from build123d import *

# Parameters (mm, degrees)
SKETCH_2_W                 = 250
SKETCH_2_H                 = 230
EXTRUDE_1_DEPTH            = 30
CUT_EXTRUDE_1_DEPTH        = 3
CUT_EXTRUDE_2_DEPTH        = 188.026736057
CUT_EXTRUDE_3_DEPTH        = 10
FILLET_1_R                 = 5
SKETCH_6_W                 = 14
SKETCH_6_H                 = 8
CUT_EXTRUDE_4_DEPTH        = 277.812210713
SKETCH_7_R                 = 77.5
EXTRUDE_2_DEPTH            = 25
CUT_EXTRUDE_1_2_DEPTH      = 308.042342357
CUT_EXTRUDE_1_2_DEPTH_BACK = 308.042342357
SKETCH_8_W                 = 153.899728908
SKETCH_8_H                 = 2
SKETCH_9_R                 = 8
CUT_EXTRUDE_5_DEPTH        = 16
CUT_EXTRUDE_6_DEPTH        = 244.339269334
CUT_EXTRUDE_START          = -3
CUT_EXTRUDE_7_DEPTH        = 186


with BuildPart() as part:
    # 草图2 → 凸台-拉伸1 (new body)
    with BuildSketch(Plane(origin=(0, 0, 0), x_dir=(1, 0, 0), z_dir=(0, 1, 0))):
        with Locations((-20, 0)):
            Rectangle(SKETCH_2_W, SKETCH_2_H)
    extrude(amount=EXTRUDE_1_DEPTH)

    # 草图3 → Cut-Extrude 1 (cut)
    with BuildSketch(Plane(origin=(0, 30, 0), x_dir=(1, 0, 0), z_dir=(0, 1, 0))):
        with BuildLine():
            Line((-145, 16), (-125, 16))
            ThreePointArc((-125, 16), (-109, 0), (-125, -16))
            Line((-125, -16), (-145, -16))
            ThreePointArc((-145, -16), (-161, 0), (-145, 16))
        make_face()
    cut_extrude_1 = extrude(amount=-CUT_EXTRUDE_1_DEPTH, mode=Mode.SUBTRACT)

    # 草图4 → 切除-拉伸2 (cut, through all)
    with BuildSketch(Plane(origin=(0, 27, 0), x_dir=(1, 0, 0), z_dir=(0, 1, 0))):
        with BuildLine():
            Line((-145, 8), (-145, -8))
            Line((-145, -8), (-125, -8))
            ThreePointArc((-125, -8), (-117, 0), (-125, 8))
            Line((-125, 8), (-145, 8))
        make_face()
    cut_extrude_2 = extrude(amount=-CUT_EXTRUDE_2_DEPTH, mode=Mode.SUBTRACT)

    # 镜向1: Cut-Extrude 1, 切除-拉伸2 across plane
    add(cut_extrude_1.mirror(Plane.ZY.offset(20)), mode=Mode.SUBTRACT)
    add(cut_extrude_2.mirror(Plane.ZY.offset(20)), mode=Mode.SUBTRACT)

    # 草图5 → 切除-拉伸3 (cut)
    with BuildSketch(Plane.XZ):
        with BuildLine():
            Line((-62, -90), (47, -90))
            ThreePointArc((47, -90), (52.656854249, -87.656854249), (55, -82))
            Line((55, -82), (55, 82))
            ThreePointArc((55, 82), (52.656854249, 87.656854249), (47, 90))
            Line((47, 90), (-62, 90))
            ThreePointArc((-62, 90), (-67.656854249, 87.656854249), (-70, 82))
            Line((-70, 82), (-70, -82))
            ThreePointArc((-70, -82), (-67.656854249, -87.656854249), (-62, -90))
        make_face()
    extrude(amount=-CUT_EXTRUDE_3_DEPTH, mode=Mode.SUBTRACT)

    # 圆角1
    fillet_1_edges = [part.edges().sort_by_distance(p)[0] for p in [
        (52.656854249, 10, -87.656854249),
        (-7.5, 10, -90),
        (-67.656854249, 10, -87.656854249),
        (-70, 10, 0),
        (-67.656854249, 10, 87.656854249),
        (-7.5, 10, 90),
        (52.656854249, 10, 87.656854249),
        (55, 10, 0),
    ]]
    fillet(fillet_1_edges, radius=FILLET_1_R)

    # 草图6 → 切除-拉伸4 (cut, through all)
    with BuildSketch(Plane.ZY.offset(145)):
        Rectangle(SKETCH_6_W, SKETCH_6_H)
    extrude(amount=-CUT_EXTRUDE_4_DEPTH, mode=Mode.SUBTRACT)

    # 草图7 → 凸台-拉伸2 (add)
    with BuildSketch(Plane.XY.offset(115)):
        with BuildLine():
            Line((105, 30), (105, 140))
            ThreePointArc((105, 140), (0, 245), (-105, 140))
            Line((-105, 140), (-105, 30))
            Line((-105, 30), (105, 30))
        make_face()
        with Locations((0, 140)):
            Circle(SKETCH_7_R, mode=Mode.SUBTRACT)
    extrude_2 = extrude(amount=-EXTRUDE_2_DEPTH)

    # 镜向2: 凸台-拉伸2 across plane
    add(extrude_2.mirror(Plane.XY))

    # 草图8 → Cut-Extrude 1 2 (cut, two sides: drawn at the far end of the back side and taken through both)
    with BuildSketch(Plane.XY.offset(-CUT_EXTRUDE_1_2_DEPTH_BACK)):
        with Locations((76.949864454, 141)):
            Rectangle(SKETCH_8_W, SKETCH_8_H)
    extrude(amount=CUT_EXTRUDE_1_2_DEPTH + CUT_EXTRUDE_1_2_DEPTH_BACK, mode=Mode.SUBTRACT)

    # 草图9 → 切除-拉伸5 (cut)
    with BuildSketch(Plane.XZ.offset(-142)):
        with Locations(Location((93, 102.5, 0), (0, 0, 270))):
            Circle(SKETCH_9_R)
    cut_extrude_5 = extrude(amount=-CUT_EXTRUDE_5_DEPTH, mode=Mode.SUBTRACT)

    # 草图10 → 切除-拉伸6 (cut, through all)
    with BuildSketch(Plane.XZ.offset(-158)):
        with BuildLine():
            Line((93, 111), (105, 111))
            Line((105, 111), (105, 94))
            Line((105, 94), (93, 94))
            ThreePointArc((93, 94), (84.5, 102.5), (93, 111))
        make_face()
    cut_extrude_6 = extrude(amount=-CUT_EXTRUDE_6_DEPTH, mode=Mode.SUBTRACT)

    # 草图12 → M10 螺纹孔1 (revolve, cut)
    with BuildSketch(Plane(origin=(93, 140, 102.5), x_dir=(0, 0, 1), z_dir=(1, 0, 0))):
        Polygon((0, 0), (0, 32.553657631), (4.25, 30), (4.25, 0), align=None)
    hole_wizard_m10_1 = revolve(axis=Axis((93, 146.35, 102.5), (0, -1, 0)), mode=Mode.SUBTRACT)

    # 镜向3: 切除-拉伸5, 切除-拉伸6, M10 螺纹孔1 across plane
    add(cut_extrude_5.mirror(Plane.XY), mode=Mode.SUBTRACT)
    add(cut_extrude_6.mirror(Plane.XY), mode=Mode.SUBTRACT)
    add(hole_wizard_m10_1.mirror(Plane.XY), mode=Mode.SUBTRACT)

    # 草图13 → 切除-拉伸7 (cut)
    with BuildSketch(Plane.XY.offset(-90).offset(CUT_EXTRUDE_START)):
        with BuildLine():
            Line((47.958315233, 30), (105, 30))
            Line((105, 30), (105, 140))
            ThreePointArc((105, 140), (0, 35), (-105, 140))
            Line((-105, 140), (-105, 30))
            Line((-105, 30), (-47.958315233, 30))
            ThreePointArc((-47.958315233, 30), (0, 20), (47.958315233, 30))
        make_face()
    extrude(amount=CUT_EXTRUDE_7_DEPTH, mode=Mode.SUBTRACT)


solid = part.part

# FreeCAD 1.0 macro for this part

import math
import FreeCAD as App
import Part
import Sketcher
Q = App.Units.Quantity


def edges_at(feature, points):
    """Names of the edges that pass closest to the given points."""
    edges = feature.Shape.Edges
    near = lambda p: min(range(len(edges)), key=lambda i: edges[i].distToShape(Part.Vertex(*p))[0])
    return sorted({f"Edge{near(p) + 1}" for p in points})

doc = App.newDocument("Part")
body = doc.addObject("PartDesign::Body", "Body")

# Sketch on XZ plane
sketch1 = body.newObject("Sketcher::SketchObject", "Sketch")
sketch1.AttachmentSupport = (doc.getObject("XZ_Plane"), [""])
sketch1.MapMode = "FlatFace"
sketch1.addGeometry([
    Part.LineSegment(App.Vector(-145, -115, 0), App.Vector(-145, 115, 0)),
    Part.LineSegment(App.Vector(-145, 115, 0), App.Vector(105, 115, 0)),
    Part.LineSegment(App.Vector(105, 115, 0), App.Vector(105, -115, 0)),
    Part.LineSegment(App.Vector(105, -115, 0), App.Vector(-145, -115, 0)),
], False)
sketch1.addConstraint([
    Sketcher.Constraint("Coincident", 0, 2, 1, 1),
    Sketcher.Constraint("Coincident", 1, 2, 2, 1),
    Sketcher.Constraint("Coincident", 2, 2, 3, 1),
    Sketcher.Constraint("Coincident", 3, 2, 0, 1),
    Sketcher.Constraint("Vertical", 0),
    Sketcher.Constraint("Horizontal", 1),
    Sketcher.Constraint("Vertical", 2),
    Sketcher.Constraint("Horizontal", 3),
    Sketcher.Constraint("DistanceX", 1, 1, 1, 2, 250.0),
    Sketcher.Constraint("DistanceY", 0, 1, 0, 2, 230.0),
    Sketcher.Constraint("DistanceX", 0, 2, -1, 1, 145.0),
    Sketcher.Constraint("DistanceY", -1, 1, 0, 2, 115.0),
])
pad1 = body.newObject("PartDesign::Pad", "Pad")
pad1.Profile = sketch1
pad1.Length = 30
pad1.Reversed = True

# Sketch on XZ plane
sketch2 = body.newObject("Sketcher::SketchObject", "Sketch001")
sketch2.AttachmentSupport = (doc.getObject("XZ_Plane"), [""])
sketch2.MapMode = "FlatFace"
sketch2.AttachmentOffset = App.Placement(App.Vector(0, 0, -30), App.Rotation())
sketch2.addGeometry([
    Part.LineSegment(App.Vector(-125, -16, 0), App.Vector(-145, -16, 0)),
    Part.ArcOfCircle(Part.Circle(App.Vector(-145, 0, 0), App.Vector(0, 0, 1), 16), math.radians(90), math.radians(270)),
    Part.LineSegment(App.Vector(-145, 16, 0), App.Vector(-125, 16, 0)),
    Part.ArcOfCircle(Part.Circle(App.Vector(-125, 0, 0), App.Vector(0, 0, 1), 16), math.radians(-90), math.radians(90)),
], False)
sketch2.addConstraint([
    Sketcher.Constraint("Tangent", 0, 2, 1, 2),
    Sketcher.Constraint("Tangent", 1, 1, 2, 1),
    Sketcher.Constraint("Tangent", 2, 2, 3, 2),
    Sketcher.Constraint("Tangent", 3, 1, 0, 1),
    Sketcher.Constraint("Horizontal", 0),
    Sketcher.Constraint("Horizontal", 2),
    Sketcher.Constraint("PointOnObject", 1, 3, -1),
    Sketcher.Constraint("Radius", 1, 16.0),
    Sketcher.Constraint("DistanceX", 0, 2, 0, 1, 20.0),
    Sketcher.Constraint("DistanceX", 1, 3, -1, 1, 145.0),
])
pocket1 = body.newObject("PartDesign::Pocket", "Pocket")
pocket1.Profile = sketch2
pocket1.Length = 3
pocket1.Reversed = True

# Sketch on XZ plane
sketch3 = body.newObject("Sketcher::SketchObject", "Sketch002")
sketch3.AttachmentSupport = (doc.getObject("XZ_Plane"), [""])
sketch3.MapMode = "FlatFace"
sketch3.AttachmentOffset = App.Placement(App.Vector(0, 0, -27), App.Rotation())
sketch3.addGeometry([
    Part.LineSegment(App.Vector(-145, -8, 0), App.Vector(-145, 8, 0)),
    Part.LineSegment(App.Vector(-145, 8, 0), App.Vector(-125, 8, 0)),
    Part.ArcOfCircle(Part.Circle(App.Vector(-125, 0, 0), App.Vector(0, 0, 1), 8), math.radians(-90), math.radians(90)),
    Part.LineSegment(App.Vector(-125, -8, 0), App.Vector(-145, -8, 0)),
], False)
sketch3.addConstraint([
    Sketcher.Constraint("Coincident", 0, 2, 1, 1),
    Sketcher.Constraint("Tangent", 1, 2, 2, 2),
    Sketcher.Constraint("Tangent", 2, 1, 3, 1),
    Sketcher.Constraint("Coincident", 3, 2, 0, 1),
    Sketcher.Constraint("Vertical", 0),
    Sketcher.Constraint("Horizontal", 1),
    Sketcher.Constraint("Horizontal", 3),
    Sketcher.Constraint("PointOnObject", 2, 3, -1),
    Sketcher.Constraint("Radius", 2, 8.0),
    Sketcher.Constraint("DistanceX", 1, 1, 1, 2, 20.0),
    Sketcher.Constraint("DistanceX", 2, 3, -1, 1, 125.0),
])
pocket2 = body.newObject("PartDesign::Pocket", "Pocket001")
pocket2.Profile = sketch3
pocket2.Type = "ThroughAll"
pocket2.Reversed = True
doc.recompute()

datumplane = body.newObject("PartDesign::Plane", "DatumPlane")
datumplane.AttachmentSupport = (doc.getObject("YZ_Plane"), [""])
datumplane.MapMode = "FlatFace"
datumplane.AttachmentOffset = App.Placement(App.Vector(0, 0, -20), App.Rotation())
mirrored = body.newObject("PartDesign::Mirrored", "Mirrored")
mirrored.Originals = [pocket1, pocket2]
mirrored.MirrorPlane = (datumplane, [""])
body.Tip = mirrored

# Sketch on XZ plane
sketch4 = body.newObject("Sketcher::SketchObject", "Sketch003")
sketch4.AttachmentSupport = (doc.getObject("XZ_Plane"), [""])
sketch4.MapMode = "FlatFace"
sketch4.addGeometry([
    Part.LineSegment(App.Vector(-62, -90, 0), App.Vector(47, -90, 0)),  # 0
    Part.ArcOfCircle(Part.Circle(App.Vector(47, -82, 0), App.Vector(0, 0, 1), 8), math.radians(-90), math.radians(0)),  # 1
    Part.LineSegment(App.Vector(55, -82, 0), App.Vector(55, 82, 0)),  # 2
    Part.ArcOfCircle(Part.Circle(App.Vector(47, 82, 0), App.Vector(0, 0, 1), 8), math.radians(0), math.radians(90)),  # 3
    Part.LineSegment(App.Vector(47, 90, 0), App.Vector(-62, 90, 0)),  # 4
    Part.ArcOfCircle(Part.Circle(App.Vector(-62, 82, 0), App.Vector(0, 0, 1), 8), math.radians(90), math.radians(180)),  # 5
    Part.LineSegment(App.Vector(-70, 82, 0), App.Vector(-70, -82, 0)),  # 6
    Part.ArcOfCircle(Part.Circle(App.Vector(-62, -82, 0), App.Vector(0, 0, 1), 8), math.radians(-180), math.radians(-90)),  # 7
], False)
sketch4.addConstraint([
    Sketcher.Constraint("Tangent", 0, 2, 1, 1),
    Sketcher.Constraint("Tangent", 1, 2, 2, 1),
    Sketcher.Constraint("Tangent", 2, 2, 3, 1),
    Sketcher.Constraint("Tangent", 3, 2, 4, 1),
    Sketcher.Constraint("Tangent", 4, 2, 5, 1),
    Sketcher.Constraint("Tangent", 5, 2, 6, 1),
    Sketcher.Constraint("Tangent", 6, 2, 7, 1),
    Sketcher.Constraint("Tangent", 7, 2, 0, 1),
    Sketcher.Constraint("Horizontal", 0),
    Sketcher.Constraint("Vertical", 2),
    Sketcher.Constraint("Horizontal", 4),
    Sketcher.Constraint("Vertical", 6),
    Sketcher.Constraint("Equal", 1, 3),
    Sketcher.Constraint("Equal", 3, 5),
    Sketcher.Constraint("Equal", 5, 7),
    Sketcher.Constraint("Radius", 1, 8.0),
    Sketcher.Constraint("DistanceX", 0, 1, 0, 2, 109.0),
    Sketcher.Constraint("DistanceY", 2, 1, 2, 2, 164.0),
    Sketcher.Constraint("DistanceX", -1, 1, 1, 3, 47.0),
    Sketcher.Constraint("DistanceY", 1, 3, -1, 1, 82.0),
])
pocket3 = body.newObject("PartDesign::Pocket", "Pocket002")
pocket3.Profile = sketch4
pocket3.Length = 10
doc.recompute()

fillet = body.newObject("PartDesign::Fillet", "Fillet")
fillet.Base = (pocket3, edges_at(pocket3, [
    (52.657, 10, -87.657),
    (-7.5, 10, -90),
    (-67.657, 10, -87.657),
    (-70, 10, 0),
    (-67.657, 10, 87.657),
    (-7.5, 10, 90),
    (52.657, 10, 87.657),
    (55, 10, 0),
]))
fillet.Radius = 5

# Sketch on YZ plane
sketch5 = body.newObject("Sketcher::SketchObject", "Sketch004")
sketch5.AttachmentSupport = (doc.getObject("YZ_Plane"), [""])
sketch5.MapMode = "FlatFace"
sketch5.AttachmentOffset = App.Placement(App.Vector(0, 0, -145), App.Rotation())
sketch5.addGeometry([
    Part.LineSegment(App.Vector(4, -7, 0), App.Vector(-4, -7, 0)),
    Part.LineSegment(App.Vector(-4, -7, 0), App.Vector(-4, 7, 0)),
    Part.LineSegment(App.Vector(-4, 7, 0), App.Vector(4, 7, 0)),
    Part.LineSegment(App.Vector(4, 7, 0), App.Vector(4, -7, 0)),
], False)
sketch5.addConstraint([
    Sketcher.Constraint("Coincident", 0, 2, 1, 1),
    Sketcher.Constraint("Coincident", 1, 2, 2, 1),
    Sketcher.Constraint("Coincident", 2, 2, 3, 1),
    Sketcher.Constraint("Coincident", 3, 2, 0, 1),
    Sketcher.Constraint("Horizontal", 0),
    Sketcher.Constraint("Vertical", 1),
    Sketcher.Constraint("Horizontal", 2),
    Sketcher.Constraint("Vertical", 3),
    Sketcher.Constraint("Symmetric", 0, 2, 2, 2, -1, 1),
    Sketcher.Constraint("DistanceX", 0, 2, 0, 1, 8.0),
    Sketcher.Constraint("DistanceY", 1, 1, 1, 2, 14.0),
])
pocket4 = body.newObject("PartDesign::Pocket", "Pocket003")
pocket4.Profile = sketch5
pocket4.Type = "ThroughAll"
pocket4.Reversed = True

# Sketch on XY plane
sketch6 = body.newObject("Sketcher::SketchObject", "Sketch005")
sketch6.AttachmentSupport = (doc.getObject("XY_Plane"), [""])
sketch6.MapMode = "FlatFace"
sketch6.AttachmentOffset = App.Placement(App.Vector(0, 0, 115), App.Rotation())
sketch6.addGeometry([
    Part.LineSegment(App.Vector(105, 30, 0), App.Vector(105, 140, 0)),  # 0
    Part.ArcOfCircle(Part.Circle(App.Vector(0, 140, 0), App.Vector(0, 0, 1), 105), math.radians(0), math.radians(180)),  # 1
    Part.LineSegment(App.Vector(-105, 140, 0), App.Vector(-105, 30, 0)),  # 2
    Part.LineSegment(App.Vector(-105, 30, 0), App.Vector(105, 30, 0)),  # 3
    Part.Circle(App.Vector(0, 140, 0), App.Vector(0, 0, 1), 77.5),  # 4
], False)
sketch6.addConstraint([
    Sketcher.Constraint("Tangent", 0, 2, 1, 1),
    Sketcher.Constraint("Tangent", 1, 2, 2, 1),
    Sketcher.Constraint("Coincident", 2, 2, 3, 1),
    Sketcher.Constraint("Coincident", 3, 2, 0, 1),
    Sketcher.Constraint("Vertical", 0),
    Sketcher.Constraint("Vertical", 2),
    Sketcher.Constraint("Horizontal", 3),
    Sketcher.Constraint("Coincident", 4, 3, 1, 3),
    Sketcher.Constraint("PointOnObject", 1, 3, -2),
    Sketcher.Constraint("Diameter", 4, 155.0),
    Sketcher.Constraint("Radius", 1, 105.0),
    Sketcher.Constraint("DistanceY", 0, 1, 0, 2, 110.0),
    Sketcher.Constraint("DistanceY", -1, 1, 1, 3, 140.0),
])
pad2 = body.newObject("PartDesign::Pad", "Pad001")
pad2.Profile = sketch6
pad2.Length = 25
pad2.Reversed = True
doc.recompute()

mirrored2 = body.newObject("PartDesign::Mirrored", "Mirrored001")
mirrored2.Originals = [pad2]
mirrored2.MirrorPlane = (doc.getObject("XY_Plane"), [""])
body.Tip = mirrored2

# Sketch on XY plane
sketch7 = body.newObject("Sketcher::SketchObject", "Sketch006")
sketch7.AttachmentSupport = (doc.getObject("XY_Plane"), [""])
sketch7.MapMode = "FlatFace"
sketch7.addGeometry([
    Part.LineSegment(App.Vector(0, 142, 0), App.Vector(0, 140, 0)),
    Part.LineSegment(App.Vector(0, 140, 0), App.Vector(153.899729, 140, 0)),
    Part.LineSegment(App.Vector(153.899729, 140, 0), App.Vector(153.899729, 142, 0)),
    Part.LineSegment(App.Vector(153.899729, 142, 0), App.Vector(0, 142, 0)),
], False)
sketch7.addConstraint([
    Sketcher.Constraint("Coincident", 0, 2, 1, 1),
    Sketcher.Constraint("Coincident", 1, 2, 2, 1),
    Sketcher.Constraint("Coincident", 2, 2, 3, 1),
    Sketcher.Constraint("Coincident", 3, 2, 0, 1),
    Sketcher.Constraint("Vertical", 0),
    Sketcher.Constraint("Horizontal", 1),
    Sketcher.Constraint("Vertical", 2),
    Sketcher.Constraint("Horizontal", 3),
    Sketcher.Constraint("PointOnObject", 0, 2, -2),
    Sketcher.Constraint("DistanceY", 0, 2, 0, 1, 2.0),
    Sketcher.Constraint("DistanceY", -1, 1, 0, 2, 140.0),
    Sketcher.Constraint("DistanceX", 1, 1, 1, 2, 153.899729),
])
pocket5 = body.newObject("PartDesign::Pocket", "Pocket004")
pocket5.Profile = sketch7
pocket5.Type = "ThroughAll"
pocket5.Midplane = True

# Sketch on XZ plane
sketch8 = body.newObject("Sketcher::SketchObject", "Sketch007")
sketch8.AttachmentSupport = (doc.getObject("XZ_Plane"), [""])
sketch8.MapMode = "FlatFace"
sketch8.AttachmentOffset = App.Placement(App.Vector(0, 0, -142), App.Rotation())
sketch8.addGeometry(Part.Circle(App.Vector(93, 102.5, 0), App.Vector(0, 0, 1), 8), False)
sketch8.addConstraint([
    Sketcher.Constraint("Diameter", 0, 16.0),
    Sketcher.Constraint("DistanceX", -1, 1, 0, 3, 93.0),
    Sketcher.Constraint("DistanceY", -1, 1, 0, 3, 102.5),
])
pocket6 = body.newObject("PartDesign::Pocket", "Pocket005")
pocket6.Profile = sketch8
pocket6.Length = 16

# Sketch on XZ plane
sketch9 = body.newObject("Sketcher::SketchObject", "Sketch008")
sketch9.AttachmentSupport = (doc.getObject("XZ_Plane"), [""])
sketch9.MapMode = "FlatFace"
sketch9.AttachmentOffset = App.Placement(App.Vector(0, 0, -158), App.Rotation())
sketch9.addGeometry([
    Part.LineSegment(App.Vector(105, 111, 0), App.Vector(93, 111, 0)),
    Part.ArcOfCircle(Part.Circle(App.Vector(93, 102.5, 0), App.Vector(0, 0, 1), 8.5), math.radians(90), math.radians(270)),
    Part.LineSegment(App.Vector(93, 94, 0), App.Vector(105, 94, 0)),
    Part.LineSegment(App.Vector(105, 94, 0), App.Vector(105, 111, 0)),
], False)
sketch9.addConstraint([
    Sketcher.Constraint("Tangent", 0, 2, 1, 1),
    Sketcher.Constraint("Tangent", 1, 2, 2, 1),
    Sketcher.Constraint("Coincident", 2, 2, 3, 1),
    Sketcher.Constraint("Coincident", 3, 2, 0, 1),
    Sketcher.Constraint("Horizontal", 0),
    Sketcher.Constraint("Horizontal", 2),
    Sketcher.Constraint("Vertical", 3),
    Sketcher.Constraint("Radius", 1, 8.5),
    Sketcher.Constraint("DistanceX", 0, 2, 0, 1, 12.0),
    Sketcher.Constraint("DistanceX", -1, 1, 1, 3, 93.0),
    Sketcher.Constraint("DistanceY", -1, 1, 0, 2, 111.0),
])
pocket7 = body.newObject("PartDesign::Pocket", "Pocket006")
pocket7.Profile = sketch9
pocket7.Type = "ThroughAll"

# Sketch on YZ plane
sketch10 = body.newObject("Sketcher::SketchObject", "Sketch009")
sketch10.AttachmentSupport = (doc.getObject("YZ_Plane"), [""])
sketch10.MapMode = "FlatFace"
sketch10.AttachmentOffset = App.Placement(App.Vector(0, 0, 93), App.Rotation())
sketch10.addGeometry([
    Part.LineSegment(App.Vector(107.446342, 102.5, 0), App.Vector(140, 102.5, 0)),
    Part.LineSegment(App.Vector(140, 102.5, 0), App.Vector(140, 106.75, 0)),
    Part.LineSegment(App.Vector(140, 106.75, 0), App.Vector(110, 106.75, 0)),
    Part.LineSegment(App.Vector(110, 106.75, 0), App.Vector(107.446342, 102.5, 0)),
], False)
sketch10.addGeometry(Part.LineSegment(App.Vector(140, 102.5, 0), App.Vector(107.446342, 102.5, 0)), True)  # axis
sketch10.addConstraint([
    Sketcher.Constraint("Coincident", 0, 2, 1, 1),
    Sketcher.Constraint("Coincident", 1, 2, 2, 1),
    Sketcher.Constraint("Coincident", 2, 2, 3, 1),
    Sketcher.Constraint("Coincident", 3, 2, 0, 1),
    Sketcher.Constraint("Horizontal", 0),
    Sketcher.Constraint("Vertical", 1),
    Sketcher.Constraint("Horizontal", 2),
    Sketcher.Constraint("Horizontal", 4),
    Sketcher.Constraint("Coincident", 4, 1, 0, 2),
    Sketcher.Constraint("Equal", 0, 4),
    Sketcher.Constraint("DistanceX", 2, 2, 2, 1, 30.0),
    Sketcher.Constraint("Angle", 3, Q("-121 deg")),
    Sketcher.Constraint("DistanceX", -1, 1, 0, 2, 140.0),
    Sketcher.Constraint("DistanceY", 1, 1, 1, 2, 4.25),
    Sketcher.Constraint("DistanceY", -1, 1, 0, 2, 102.5),
])
groove = body.newObject("PartDesign::Groove", "Groove")
groove.Profile = sketch10
groove.ReferenceAxis = (sketch10, ["Axis0"])
groove.Angle = 360
doc.recompute()

mirrored3 = body.newObject("PartDesign::Mirrored", "Mirrored002")
mirrored3.Originals = [pocket6, pocket7, groove]
mirrored3.MirrorPlane = (doc.getObject("XY_Plane"), [""])
body.Tip = mirrored3

# Sketch on XY plane
sketch11 = body.newObject("Sketcher::SketchObject", "Sketch010")
sketch11.AttachmentSupport = (doc.getObject("XY_Plane"), [""])
sketch11.MapMode = "FlatFace"
sketch11.AttachmentOffset = App.Placement(App.Vector(0, 0, -93), App.Rotation())
sketch11.addGeometry([
    Part.LineSegment(App.Vector(47.958315, 30, 0), App.Vector(105, 30, 0)),  # 0
    Part.LineSegment(App.Vector(105, 30, 0), App.Vector(105, 140, 0)),  # 1
    Part.ArcOfCircle(Part.Circle(App.Vector(0, 140, 0), App.Vector(0, 0, 1), 105), math.radians(180), math.radians(360)),  # 2
    Part.LineSegment(App.Vector(-105, 140, 0), App.Vector(-105, 30, 0)),  # 3
    Part.LineSegment(App.Vector(-105, 30, 0), App.Vector(-47.958315, 30, 0)),  # 4
    Part.ArcOfCircle(Part.Circle(App.Vector(0, 140, 0), App.Vector(0, 0, 1), 120), math.radians(-113.556464), math.radians(-66.443536)),  # 5
], False)
sketch11.addConstraint([
    Sketcher.Constraint("Coincident", 0, 2, 1, 1),
    Sketcher.Constraint("Tangent", 1, 2, 2, 2),
    Sketcher.Constraint("Tangent", 2, 1, 3, 1),
    Sketcher.Constraint("Coincident", 3, 2, 4, 1),
    Sketcher.Constraint("Coincident", 4, 2, 5, 1),
    Sketcher.Constraint("Coincident", 5, 2, 0, 1),
    Sketcher.Constraint("Horizontal", 0),
    Sketcher.Constraint("Vertical", 1),
    Sketcher.Constraint("Vertical", 3),
    Sketcher.Constraint("Horizontal", 4),
    Sketcher.Constraint("Coincident", 5, 3, 2, 3),
    Sketcher.Constraint("Symmetric", 0, 2, 3, 2, -2),
    Sketcher.Constraint("Radius", 2, 105.0),
    Sketcher.Constraint("Radius", 5, 120.0),
    Sketcher.Constraint("DistanceY", 1, 1, 1, 2, 110.0),
    Sketcher.Constraint("DistanceY", -1, 1, 2, 3, 140.0),
])
pocket8 = body.newObject("PartDesign::Pocket", "Pocket007")
pocket8.Profile = sketch11
pocket8.Length = 186
pocket8.Reversed = True

doc.recompute()
